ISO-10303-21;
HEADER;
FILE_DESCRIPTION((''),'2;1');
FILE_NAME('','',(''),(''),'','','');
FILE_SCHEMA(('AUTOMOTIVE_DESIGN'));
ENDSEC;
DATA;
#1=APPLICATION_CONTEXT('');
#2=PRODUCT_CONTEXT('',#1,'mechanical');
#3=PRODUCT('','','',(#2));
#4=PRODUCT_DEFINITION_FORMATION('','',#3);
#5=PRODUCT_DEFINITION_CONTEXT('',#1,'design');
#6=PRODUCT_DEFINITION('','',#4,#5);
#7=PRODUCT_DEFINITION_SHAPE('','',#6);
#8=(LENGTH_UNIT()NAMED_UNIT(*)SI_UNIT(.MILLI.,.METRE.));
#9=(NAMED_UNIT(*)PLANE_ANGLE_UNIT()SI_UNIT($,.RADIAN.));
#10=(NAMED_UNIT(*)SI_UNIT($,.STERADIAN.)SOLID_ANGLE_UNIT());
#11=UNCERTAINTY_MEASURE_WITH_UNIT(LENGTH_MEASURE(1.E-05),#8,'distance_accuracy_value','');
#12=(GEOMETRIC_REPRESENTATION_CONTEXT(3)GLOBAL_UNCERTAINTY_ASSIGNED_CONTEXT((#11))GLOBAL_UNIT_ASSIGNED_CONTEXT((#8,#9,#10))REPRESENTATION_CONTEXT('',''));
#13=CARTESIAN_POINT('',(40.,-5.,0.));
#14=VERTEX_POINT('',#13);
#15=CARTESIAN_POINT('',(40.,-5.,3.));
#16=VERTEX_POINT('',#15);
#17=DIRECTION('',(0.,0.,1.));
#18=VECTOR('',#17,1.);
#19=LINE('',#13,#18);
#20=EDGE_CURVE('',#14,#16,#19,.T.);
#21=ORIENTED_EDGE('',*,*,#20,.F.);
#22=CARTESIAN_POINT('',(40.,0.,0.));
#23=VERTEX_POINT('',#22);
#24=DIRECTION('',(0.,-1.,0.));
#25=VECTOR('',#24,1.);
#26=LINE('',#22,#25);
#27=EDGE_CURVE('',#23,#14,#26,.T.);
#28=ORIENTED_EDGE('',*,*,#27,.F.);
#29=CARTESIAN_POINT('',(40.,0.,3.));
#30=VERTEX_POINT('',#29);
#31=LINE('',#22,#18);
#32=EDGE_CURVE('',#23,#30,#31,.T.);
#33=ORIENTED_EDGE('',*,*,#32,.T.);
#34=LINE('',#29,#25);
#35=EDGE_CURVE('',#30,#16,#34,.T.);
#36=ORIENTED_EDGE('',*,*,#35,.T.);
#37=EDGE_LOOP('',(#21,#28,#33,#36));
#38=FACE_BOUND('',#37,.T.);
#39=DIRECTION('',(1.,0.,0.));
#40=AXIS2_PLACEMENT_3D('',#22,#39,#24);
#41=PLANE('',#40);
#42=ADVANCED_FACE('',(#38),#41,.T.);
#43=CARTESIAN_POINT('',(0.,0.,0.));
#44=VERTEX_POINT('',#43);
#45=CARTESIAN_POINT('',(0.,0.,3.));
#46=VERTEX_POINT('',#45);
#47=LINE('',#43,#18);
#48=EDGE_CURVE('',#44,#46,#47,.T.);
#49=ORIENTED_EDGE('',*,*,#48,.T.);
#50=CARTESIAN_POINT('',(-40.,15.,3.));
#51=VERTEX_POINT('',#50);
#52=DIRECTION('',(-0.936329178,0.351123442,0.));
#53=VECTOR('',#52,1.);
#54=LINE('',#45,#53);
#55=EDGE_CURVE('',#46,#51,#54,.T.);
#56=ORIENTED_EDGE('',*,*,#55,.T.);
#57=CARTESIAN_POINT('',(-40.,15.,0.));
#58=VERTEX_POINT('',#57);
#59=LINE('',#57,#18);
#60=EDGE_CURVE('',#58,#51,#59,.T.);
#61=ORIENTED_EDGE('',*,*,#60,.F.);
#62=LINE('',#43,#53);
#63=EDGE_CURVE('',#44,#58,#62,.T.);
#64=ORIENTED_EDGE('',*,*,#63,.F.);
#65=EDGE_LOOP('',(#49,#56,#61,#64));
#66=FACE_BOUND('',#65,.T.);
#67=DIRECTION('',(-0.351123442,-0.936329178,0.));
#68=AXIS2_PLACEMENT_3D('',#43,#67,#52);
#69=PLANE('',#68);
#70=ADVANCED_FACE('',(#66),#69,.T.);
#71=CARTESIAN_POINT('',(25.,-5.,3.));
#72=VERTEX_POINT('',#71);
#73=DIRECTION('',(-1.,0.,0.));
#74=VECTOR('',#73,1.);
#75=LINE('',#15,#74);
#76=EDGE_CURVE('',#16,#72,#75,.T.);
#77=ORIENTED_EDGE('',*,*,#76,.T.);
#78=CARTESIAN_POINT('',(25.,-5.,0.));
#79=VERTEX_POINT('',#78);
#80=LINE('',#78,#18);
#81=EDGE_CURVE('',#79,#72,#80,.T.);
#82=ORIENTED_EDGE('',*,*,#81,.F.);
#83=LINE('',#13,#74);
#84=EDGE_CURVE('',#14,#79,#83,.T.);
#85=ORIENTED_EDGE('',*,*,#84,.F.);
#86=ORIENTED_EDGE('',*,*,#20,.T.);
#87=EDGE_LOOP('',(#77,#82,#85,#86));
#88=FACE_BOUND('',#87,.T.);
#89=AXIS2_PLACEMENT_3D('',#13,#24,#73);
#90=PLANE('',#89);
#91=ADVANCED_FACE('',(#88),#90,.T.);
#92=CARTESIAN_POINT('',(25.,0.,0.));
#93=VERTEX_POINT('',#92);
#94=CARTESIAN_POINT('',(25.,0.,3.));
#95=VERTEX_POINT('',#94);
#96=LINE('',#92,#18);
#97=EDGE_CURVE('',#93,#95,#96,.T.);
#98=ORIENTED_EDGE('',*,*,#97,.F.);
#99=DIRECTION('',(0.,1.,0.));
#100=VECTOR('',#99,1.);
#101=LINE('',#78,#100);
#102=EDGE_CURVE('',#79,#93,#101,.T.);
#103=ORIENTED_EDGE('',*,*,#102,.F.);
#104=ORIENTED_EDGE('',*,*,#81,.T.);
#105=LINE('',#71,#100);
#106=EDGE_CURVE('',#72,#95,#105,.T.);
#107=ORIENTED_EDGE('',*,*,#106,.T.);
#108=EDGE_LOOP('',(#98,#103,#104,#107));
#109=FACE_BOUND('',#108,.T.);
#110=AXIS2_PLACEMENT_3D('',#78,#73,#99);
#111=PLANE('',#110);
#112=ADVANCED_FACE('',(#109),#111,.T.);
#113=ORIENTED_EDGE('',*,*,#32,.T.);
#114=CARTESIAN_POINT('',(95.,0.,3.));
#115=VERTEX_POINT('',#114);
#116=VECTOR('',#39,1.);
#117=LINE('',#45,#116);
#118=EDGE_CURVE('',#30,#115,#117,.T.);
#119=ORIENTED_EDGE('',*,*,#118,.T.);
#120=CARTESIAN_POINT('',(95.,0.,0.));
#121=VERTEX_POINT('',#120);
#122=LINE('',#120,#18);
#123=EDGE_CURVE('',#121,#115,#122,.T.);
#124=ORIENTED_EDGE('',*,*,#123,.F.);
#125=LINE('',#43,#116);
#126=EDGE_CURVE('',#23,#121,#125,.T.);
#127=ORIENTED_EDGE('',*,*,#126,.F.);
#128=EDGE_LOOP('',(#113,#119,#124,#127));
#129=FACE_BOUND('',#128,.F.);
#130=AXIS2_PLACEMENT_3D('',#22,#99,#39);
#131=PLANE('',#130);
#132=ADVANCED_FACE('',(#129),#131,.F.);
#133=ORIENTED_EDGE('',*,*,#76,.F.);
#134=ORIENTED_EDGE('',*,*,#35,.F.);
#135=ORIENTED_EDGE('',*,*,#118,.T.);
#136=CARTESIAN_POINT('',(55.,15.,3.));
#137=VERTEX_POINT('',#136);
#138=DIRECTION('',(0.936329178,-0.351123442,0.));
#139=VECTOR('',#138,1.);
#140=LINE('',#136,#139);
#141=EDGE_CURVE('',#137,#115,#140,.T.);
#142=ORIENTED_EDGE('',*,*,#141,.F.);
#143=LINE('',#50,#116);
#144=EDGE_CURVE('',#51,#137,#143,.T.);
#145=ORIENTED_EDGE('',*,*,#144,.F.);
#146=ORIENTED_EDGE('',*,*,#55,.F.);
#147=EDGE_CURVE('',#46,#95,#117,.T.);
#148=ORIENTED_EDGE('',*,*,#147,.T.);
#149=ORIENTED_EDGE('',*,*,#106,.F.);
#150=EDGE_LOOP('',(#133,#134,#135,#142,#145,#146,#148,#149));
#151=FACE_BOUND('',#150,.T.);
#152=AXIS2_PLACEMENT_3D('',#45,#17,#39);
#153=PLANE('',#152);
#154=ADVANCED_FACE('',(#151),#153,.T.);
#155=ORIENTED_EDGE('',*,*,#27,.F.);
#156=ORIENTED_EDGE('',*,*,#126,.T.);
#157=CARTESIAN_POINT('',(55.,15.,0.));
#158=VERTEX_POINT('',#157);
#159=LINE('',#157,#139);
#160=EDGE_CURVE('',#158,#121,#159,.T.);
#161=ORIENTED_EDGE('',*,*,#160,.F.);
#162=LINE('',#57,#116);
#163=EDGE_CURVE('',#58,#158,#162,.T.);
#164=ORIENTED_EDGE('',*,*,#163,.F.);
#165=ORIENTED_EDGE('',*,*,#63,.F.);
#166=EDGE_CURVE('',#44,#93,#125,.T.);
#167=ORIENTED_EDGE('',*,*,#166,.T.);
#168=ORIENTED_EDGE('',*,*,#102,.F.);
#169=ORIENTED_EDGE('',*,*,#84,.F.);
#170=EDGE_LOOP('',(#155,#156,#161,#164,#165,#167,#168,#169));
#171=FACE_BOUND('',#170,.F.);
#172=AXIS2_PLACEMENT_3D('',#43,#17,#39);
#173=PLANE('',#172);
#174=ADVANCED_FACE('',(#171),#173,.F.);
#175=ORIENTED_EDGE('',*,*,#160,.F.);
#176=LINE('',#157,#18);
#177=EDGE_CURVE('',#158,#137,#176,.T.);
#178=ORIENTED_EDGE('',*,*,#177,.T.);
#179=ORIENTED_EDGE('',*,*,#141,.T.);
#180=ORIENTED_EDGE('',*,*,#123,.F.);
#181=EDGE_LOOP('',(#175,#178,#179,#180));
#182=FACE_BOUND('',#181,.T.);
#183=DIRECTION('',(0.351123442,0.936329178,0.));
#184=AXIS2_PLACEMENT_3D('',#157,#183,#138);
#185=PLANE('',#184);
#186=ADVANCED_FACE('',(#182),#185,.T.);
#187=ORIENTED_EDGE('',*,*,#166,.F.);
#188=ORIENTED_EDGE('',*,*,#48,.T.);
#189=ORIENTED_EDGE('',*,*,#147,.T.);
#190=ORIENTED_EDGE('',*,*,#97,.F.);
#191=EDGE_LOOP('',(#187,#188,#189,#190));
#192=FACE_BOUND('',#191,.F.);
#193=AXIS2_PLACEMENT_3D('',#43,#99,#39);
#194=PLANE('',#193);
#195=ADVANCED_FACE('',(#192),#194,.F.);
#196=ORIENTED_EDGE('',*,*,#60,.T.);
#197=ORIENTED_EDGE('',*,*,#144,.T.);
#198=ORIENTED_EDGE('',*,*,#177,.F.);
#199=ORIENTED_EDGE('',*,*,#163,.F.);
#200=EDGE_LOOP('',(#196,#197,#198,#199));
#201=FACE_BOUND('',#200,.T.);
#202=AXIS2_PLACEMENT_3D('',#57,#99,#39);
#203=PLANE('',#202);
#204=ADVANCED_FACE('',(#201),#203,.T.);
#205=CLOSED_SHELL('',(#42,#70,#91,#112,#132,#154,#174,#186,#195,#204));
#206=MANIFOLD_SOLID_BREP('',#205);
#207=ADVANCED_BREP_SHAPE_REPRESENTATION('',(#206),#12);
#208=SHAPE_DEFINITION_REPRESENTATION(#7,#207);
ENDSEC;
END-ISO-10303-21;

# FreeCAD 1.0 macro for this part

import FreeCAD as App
import Part
import Sketcher
from FreeCAD import Vector

doc = App.newDocument("Part")
body = doc.addObject("PartDesign::Body", "Body")

# Sketch on XY plane
sketch1 = body.newObject("Sketcher::SketchObject", "Sketch")
sketch1.AttachmentSupport = (doc.getObject("XY_Plane"), [""])
sketch1.MapMode = "FlatFace"
sketch1.addGeometry([
    Part.LineSegment(Vector(-40, 15, 0), Vector(0, 0, 0)),  # 0
    Part.LineSegment(Vector(0, 0, 0), Vector(25, 0, 0)),  # 1
    Part.LineSegment(Vector(25, 0, 0), Vector(25, -5, 0)),  # 2
    Part.LineSegment(Vector(25, -5, 0), Vector(40, -5, 0)),  # 3
    Part.LineSegment(Vector(40, -5, 0), Vector(40, 0, 0)),  # 4
    Part.LineSegment(Vector(40, 0, 0), Vector(95, 0, 0)),  # 5
    Part.LineSegment(Vector(95, 0, 0), Vector(55, 15, 0)),  # 6
    Part.LineSegment(Vector(55, 15, 0), Vector(-40, 15, 0)),  # 7
], False)
sketch1.addConstraint([
    Sketcher.Constraint("Coincident", 0, 2, 1, 1),
    Sketcher.Constraint("Coincident", 1, 2, 2, 1),
    Sketcher.Constraint("Coincident", 2, 2, 3, 1),
    Sketcher.Constraint("Coincident", 3, 2, 4, 1),
    Sketcher.Constraint("Coincident", 4, 2, 5, 1),
    Sketcher.Constraint("Coincident", 5, 2, 6, 1),
    Sketcher.Constraint("Coincident", 6, 2, 7, 1),
    Sketcher.Constraint("Coincident", 7, 2, 0, 1),
    Sketcher.Constraint("Horizontal", 1),
    Sketcher.Constraint("Vertical", 2),
    Sketcher.Constraint("Horizontal", 3),
    Sketcher.Constraint("Vertical", 4),
    Sketcher.Constraint("Horizontal", 5),
    Sketcher.Constraint("Horizontal", 7),
    Sketcher.Constraint("Coincident", 0, 2, -1, 1),
    Sketcher.Constraint("PointOnObject", 4, 2, -1),
    Sketcher.Constraint("Parallel", 0, 6),
    Sketcher.Constraint("DistanceX", 1, 1, 1, 2, 25.0),
    Sketcher.Constraint("DistanceX", 3, 1, 3, 2, 15.0),
    Sketcher.Constraint("DistanceX", 7, 2, 7, 1, 95.0),
    Sketcher.Constraint("DistanceY", 2, 2, 2, 1, 5.0),
    Sketcher.Constraint("DistanceY", -1, 1, 6, 2, 15.0),
    Sketcher.Constraint("DistanceX", 7, 2, -1, 1, 40.0),
])
pad1 = body.newObject("PartDesign::Pad", "Pad")
pad1.Profile = sketch1
pad1.Length = 3

doc.recompute()
